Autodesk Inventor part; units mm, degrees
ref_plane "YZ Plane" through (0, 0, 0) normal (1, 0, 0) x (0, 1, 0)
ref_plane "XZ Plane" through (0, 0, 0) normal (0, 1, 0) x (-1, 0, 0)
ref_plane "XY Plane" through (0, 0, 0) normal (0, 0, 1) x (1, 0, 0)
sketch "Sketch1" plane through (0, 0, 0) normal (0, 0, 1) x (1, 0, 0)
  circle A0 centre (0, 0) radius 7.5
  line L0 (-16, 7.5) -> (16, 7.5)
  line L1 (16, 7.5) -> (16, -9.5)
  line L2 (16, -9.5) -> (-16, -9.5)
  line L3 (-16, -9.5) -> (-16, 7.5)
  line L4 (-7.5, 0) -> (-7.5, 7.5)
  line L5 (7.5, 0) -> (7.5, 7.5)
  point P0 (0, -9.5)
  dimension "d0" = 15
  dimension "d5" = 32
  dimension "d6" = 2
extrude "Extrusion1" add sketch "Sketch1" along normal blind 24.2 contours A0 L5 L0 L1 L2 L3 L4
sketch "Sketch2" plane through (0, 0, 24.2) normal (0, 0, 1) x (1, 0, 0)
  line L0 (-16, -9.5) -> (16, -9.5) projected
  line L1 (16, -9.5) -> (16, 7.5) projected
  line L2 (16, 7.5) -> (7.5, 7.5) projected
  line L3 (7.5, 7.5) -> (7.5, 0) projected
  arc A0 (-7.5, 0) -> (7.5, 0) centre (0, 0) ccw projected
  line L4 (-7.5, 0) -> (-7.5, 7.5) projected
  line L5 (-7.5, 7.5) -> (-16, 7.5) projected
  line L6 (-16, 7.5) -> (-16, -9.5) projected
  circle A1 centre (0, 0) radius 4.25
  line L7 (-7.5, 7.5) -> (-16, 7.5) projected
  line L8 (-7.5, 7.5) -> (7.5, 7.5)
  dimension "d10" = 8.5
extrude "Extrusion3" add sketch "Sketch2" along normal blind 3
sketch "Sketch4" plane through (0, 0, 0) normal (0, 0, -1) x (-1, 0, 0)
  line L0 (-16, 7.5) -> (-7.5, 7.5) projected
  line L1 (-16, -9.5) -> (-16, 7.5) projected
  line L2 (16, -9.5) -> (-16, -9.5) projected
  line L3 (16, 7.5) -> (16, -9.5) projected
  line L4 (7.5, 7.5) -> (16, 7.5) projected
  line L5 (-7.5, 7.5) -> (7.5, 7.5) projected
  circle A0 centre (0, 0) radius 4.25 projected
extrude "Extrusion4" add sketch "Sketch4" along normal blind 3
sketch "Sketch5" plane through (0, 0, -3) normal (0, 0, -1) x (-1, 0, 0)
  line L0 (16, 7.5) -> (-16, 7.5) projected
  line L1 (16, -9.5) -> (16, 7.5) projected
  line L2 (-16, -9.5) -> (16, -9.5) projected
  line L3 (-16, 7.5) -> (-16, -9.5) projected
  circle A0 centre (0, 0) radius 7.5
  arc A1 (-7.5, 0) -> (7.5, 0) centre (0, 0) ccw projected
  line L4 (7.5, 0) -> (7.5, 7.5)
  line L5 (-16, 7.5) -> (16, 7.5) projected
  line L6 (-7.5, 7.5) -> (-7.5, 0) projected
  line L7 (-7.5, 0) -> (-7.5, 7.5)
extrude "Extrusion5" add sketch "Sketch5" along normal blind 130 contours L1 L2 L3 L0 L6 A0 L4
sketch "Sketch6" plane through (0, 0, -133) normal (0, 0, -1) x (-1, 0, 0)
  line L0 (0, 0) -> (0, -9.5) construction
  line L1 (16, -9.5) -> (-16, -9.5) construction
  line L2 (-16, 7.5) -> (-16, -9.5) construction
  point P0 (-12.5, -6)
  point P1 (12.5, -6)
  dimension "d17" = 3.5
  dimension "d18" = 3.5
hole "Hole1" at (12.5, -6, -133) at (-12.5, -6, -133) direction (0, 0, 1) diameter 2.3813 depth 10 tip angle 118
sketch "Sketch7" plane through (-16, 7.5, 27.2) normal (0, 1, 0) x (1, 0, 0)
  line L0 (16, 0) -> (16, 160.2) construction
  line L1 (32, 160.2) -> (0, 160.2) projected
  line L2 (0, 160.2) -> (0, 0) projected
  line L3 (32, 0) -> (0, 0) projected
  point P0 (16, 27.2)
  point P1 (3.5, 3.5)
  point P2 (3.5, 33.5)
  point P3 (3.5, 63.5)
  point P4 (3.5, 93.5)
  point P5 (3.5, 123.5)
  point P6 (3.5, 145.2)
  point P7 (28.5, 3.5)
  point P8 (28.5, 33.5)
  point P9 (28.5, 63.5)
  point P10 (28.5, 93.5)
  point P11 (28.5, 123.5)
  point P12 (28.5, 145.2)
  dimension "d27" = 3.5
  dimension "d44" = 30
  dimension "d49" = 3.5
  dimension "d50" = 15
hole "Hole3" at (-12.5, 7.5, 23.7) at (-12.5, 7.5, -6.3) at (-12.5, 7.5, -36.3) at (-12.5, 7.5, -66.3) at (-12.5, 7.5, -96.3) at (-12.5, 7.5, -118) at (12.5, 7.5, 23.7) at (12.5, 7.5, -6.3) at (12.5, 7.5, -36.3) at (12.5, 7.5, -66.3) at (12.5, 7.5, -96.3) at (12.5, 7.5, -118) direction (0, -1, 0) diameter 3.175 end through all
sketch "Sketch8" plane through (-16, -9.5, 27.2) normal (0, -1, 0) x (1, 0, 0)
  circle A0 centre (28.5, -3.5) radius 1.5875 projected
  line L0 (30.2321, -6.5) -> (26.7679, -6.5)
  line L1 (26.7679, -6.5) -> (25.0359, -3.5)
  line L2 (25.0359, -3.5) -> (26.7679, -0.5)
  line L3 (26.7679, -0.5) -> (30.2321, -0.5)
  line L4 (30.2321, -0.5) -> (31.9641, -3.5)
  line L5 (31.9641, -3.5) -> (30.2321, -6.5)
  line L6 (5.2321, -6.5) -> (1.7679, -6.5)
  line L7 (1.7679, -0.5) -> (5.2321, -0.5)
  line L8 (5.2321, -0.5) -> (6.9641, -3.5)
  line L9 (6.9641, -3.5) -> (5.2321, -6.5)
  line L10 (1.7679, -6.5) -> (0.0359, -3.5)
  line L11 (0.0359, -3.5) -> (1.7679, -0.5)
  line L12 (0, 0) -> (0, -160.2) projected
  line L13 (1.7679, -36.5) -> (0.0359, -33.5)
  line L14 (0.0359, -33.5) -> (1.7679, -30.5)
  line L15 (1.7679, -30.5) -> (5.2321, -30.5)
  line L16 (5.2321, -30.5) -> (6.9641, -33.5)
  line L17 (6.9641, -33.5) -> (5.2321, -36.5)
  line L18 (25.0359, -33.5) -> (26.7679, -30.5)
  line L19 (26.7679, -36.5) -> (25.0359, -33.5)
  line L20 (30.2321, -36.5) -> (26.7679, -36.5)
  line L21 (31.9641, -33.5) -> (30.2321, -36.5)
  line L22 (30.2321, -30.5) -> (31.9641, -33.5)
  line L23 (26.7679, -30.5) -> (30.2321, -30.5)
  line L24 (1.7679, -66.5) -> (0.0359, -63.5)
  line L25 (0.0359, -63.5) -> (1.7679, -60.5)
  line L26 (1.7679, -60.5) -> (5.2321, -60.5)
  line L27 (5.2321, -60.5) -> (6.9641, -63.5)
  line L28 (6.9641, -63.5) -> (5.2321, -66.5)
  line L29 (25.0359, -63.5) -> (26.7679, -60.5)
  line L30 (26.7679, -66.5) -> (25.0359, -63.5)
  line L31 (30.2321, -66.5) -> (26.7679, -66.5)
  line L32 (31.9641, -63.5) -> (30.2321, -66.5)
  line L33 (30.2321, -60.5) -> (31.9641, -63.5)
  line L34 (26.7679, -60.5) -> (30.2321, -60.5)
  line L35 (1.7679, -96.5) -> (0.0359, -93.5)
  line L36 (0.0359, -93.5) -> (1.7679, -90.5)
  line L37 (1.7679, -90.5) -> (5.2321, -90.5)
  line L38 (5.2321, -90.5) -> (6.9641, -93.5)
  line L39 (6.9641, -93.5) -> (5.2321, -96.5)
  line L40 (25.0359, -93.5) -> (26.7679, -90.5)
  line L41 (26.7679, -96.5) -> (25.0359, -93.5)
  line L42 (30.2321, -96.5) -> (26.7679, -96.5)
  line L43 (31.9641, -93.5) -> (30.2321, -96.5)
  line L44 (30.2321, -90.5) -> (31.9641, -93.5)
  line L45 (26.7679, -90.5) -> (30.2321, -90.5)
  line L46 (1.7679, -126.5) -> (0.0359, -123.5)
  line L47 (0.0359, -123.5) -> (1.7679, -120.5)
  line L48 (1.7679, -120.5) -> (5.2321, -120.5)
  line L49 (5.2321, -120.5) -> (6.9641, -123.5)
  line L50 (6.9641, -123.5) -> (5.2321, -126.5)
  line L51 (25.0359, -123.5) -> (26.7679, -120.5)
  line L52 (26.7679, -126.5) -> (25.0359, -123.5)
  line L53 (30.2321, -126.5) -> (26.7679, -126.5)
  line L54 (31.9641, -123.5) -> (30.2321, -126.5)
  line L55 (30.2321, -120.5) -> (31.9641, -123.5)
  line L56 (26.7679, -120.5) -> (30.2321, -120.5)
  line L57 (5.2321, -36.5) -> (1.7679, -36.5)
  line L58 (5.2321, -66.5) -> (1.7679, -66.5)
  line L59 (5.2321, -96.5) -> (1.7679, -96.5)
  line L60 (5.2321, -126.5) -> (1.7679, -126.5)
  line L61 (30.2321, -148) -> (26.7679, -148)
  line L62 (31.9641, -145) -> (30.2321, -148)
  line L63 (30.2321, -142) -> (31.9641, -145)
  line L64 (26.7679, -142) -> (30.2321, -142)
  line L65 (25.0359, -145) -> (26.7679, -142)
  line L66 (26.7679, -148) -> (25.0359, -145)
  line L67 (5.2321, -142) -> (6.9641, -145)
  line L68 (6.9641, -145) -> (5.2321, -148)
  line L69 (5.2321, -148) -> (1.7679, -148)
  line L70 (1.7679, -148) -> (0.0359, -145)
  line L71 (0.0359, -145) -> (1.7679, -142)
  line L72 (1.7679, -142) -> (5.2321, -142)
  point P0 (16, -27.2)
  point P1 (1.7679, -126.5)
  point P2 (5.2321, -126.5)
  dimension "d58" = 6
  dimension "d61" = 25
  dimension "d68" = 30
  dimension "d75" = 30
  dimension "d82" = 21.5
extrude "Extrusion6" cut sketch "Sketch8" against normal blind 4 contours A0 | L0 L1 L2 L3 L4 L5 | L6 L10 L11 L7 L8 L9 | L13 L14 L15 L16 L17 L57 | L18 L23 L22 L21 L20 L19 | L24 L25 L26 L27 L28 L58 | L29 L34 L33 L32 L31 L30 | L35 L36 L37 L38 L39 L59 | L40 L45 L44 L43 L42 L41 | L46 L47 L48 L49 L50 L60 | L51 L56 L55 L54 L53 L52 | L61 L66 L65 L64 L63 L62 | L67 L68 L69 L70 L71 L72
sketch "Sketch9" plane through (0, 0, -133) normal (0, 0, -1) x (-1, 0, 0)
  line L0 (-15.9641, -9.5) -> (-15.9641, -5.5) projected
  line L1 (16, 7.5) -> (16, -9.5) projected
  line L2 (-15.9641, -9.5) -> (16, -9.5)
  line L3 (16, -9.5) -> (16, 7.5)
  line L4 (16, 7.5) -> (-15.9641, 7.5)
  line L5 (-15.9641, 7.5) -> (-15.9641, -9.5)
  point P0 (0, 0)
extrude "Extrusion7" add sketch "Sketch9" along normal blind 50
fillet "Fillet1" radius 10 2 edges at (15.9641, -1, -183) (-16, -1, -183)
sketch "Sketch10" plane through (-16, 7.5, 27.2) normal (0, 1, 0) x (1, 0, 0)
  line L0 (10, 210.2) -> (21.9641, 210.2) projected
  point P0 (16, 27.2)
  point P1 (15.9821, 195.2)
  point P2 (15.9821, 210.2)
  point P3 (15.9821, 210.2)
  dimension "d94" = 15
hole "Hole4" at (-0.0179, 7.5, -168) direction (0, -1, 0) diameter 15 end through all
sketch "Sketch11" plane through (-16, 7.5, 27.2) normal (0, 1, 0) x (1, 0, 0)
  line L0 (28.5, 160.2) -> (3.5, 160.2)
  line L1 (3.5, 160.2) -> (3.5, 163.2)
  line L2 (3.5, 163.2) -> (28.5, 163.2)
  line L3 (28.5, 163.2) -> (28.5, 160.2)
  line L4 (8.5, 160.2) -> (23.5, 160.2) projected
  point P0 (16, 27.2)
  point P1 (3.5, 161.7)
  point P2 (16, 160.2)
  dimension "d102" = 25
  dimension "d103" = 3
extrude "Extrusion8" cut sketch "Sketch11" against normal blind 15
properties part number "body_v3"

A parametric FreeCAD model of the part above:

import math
import FreeCAD as App
import Part
import Sketcher

V = App.Vector
Q = App.Units.Quantity


def edges_at(feature, points):
    """Names of the edges that pass closest to the given points."""
    edges = feature.Shape.Edges
    near = lambda p: min(range(len(edges)), key=lambda i: edges[i].distToShape(Part.Vertex(*p))[0])
    return sorted({f"Edge{near(p) + 1}" for p in points})

doc = App.newDocument("Part")
body = doc.addObject("PartDesign::Body", "Body")

# Sketch on XY plane
sketch1 = body.newObject("Sketcher::SketchObject", "Sketch")
sketch1.AttachmentSupport = (doc.getObject("XY_Plane"), [""])
sketch1.MapMode = "FlatFace"
sketch1.addGeometry([
    Part.ArcOfCircle(Part.Circle(V(0, 0, 0), V(0, 0, 1), 8), math.radians(180), math.radians(360)),  # 0
    Part.LineSegment(V(-8, 0, 0), V(-8, 8, 0)),  # 1
    Part.LineSegment(V(-8, 8, 0), V(-16, 8, 0)),  # 2
    Part.LineSegment(V(-16, 8, 0), V(-16, -10, 0)),  # 3
    Part.LineSegment(V(-16, -10, 0), V(16, -10, 0)),  # 4
    Part.LineSegment(V(16, -10, 0), V(16, 8, 0)),  # 5
    Part.LineSegment(V(16, 8, 0), V(8, 8, 0)),  # 6
    Part.LineSegment(V(8, 8, 0), V(8, 0, 0)),  # 7
], False)
sketch1.addConstraint([
    Sketcher.Constraint("Tangent", 0, 1, 1, 1),
    Sketcher.Constraint("Coincident", 1, 2, 2, 1),
    Sketcher.Constraint("Coincident", 2, 2, 3, 1),
    Sketcher.Constraint("Coincident", 3, 2, 4, 1),
    Sketcher.Constraint("Coincident", 4, 2, 5, 1),
    Sketcher.Constraint("Coincident", 5, 2, 6, 1),
    Sketcher.Constraint("Coincident", 6, 2, 7, 1),
    Sketcher.Constraint("Tangent", 7, 2, 0, 2),
    Sketcher.Constraint("Vertical", 1),
    Sketcher.Constraint("Horizontal", 2),
    Sketcher.Constraint("Vertical", 3),
    Sketcher.Constraint("Horizontal", 4),
    Sketcher.Constraint("Vertical", 5),
    Sketcher.Constraint("Horizontal", 6),
    Sketcher.Constraint("Vertical", 7),
    Sketcher.Constraint("Coincident", 0, 3, -1, 1),
    Sketcher.Constraint("Symmetric", 2, 2, 5, 2, -2),
    Sketcher.Constraint("Radius", 0, 7.5),
    Sketcher.Constraint("DistanceX", 4, 1, 4, 2, 32.0),
    Sketcher.Constraint("DistanceY", 3, 2, 3, 1, 17.0),
    Sketcher.Constraint("DistanceY", 1, 1, 1, 2, 7.5),
])
pad1 = body.newObject("PartDesign::Pad", "Pad")
pad1.Profile = sketch1
pad1.Length = 24.2

# Sketch on XY plane
sketch2 = body.newObject("Sketcher::SketchObject", "Sketch001")
sketch2.AttachmentSupport = (doc.getObject("XY_Plane"), [""])
sketch2.MapMode = "FlatFace"
sketch2.AttachmentOffset = App.Placement(V(0, 0, 24.2), App.Rotation())
sketch2.addGeometry([
    Part.LineSegment(V(-16, 7.5, 0), V(-16, -9.5, 0)),  # 0
    Part.LineSegment(V(-16, -9.5, 0), V(16, -9.5, 0)),  # 1
    Part.LineSegment(V(16, -9.5, 0), V(16, 7.5, 0)),  # 2
    Part.LineSegment(V(16, 7.5, 0), V(-16, 7.5, 0)),  # 3
    Part.Circle(V(0, 0, 0), V(0, 0, 1), 4.2),  # 4
], False)
sketch2.addConstraint([
    Sketcher.Constraint("Coincident", 0, 2, 1, 1),
    Sketcher.Constraint("Coincident", 1, 2, 2, 1),
    Sketcher.Constraint("Coincident", 2, 2, 3, 1),
    Sketcher.Constraint("Coincident", 3, 2, 0, 1),
    Sketcher.Constraint("Vertical", 0),
    Sketcher.Constraint("Horizontal", 1),
    Sketcher.Constraint("Vertical", 2),
    Sketcher.Constraint("Horizontal", 3),
    Sketcher.Constraint("Coincident", 4, 3, -1, 1),
    Sketcher.Constraint("Diameter", 4, 8.5),
    Sketcher.Constraint("DistanceX", 1, 1, 1, 2, 32.0),
    Sketcher.Constraint("DistanceY", 0, 2, 0, 1, 17.0),
    Sketcher.Constraint("DistanceX", 0, 2, -1, 1, 16.0),
    Sketcher.Constraint("DistanceY", 0, 2, -1, 1, 9.5),
])
pad2 = body.newObject("PartDesign::Pad", "Pad001")
pad2.Profile = sketch2
pad2.Length = 3

# Sketch on XY plane
sketch3 = body.newObject("Sketcher::SketchObject", "Sketch002")
sketch3.AttachmentSupport = (doc.getObject("XY_Plane"), [""])
sketch3.MapMode = "FlatFace"
sketch3.addGeometry([
    Part.LineSegment(V(-16, 7.5, 0), V(16, 7.5, 0)),  # 0
    Part.LineSegment(V(16, 7.5, 0), V(16, -9.5, 0)),  # 1
    Part.LineSegment(V(16, -9.5, 0), V(-16, -9.5, 0)),  # 2
    Part.LineSegment(V(-16, -9.5, 0), V(-16, 7.5, 0)),  # 3
    Part.Circle(V(0, 0, 0), V(0, 0, 1), 4.2),  # 4
], False)
sketch3.addConstraint([
    Sketcher.Constraint("Coincident", 0, 2, 1, 1),
    Sketcher.Constraint("Coincident", 1, 2, 2, 1),
    Sketcher.Constraint("Coincident", 2, 2, 3, 1),
    Sketcher.Constraint("Coincident", 3, 2, 0, 1),
    Sketcher.Constraint("Horizontal", 0),
    Sketcher.Constraint("Vertical", 1),
    Sketcher.Constraint("Horizontal", 2),
    Sketcher.Constraint("Vertical", 3),
    Sketcher.Constraint("Coincident", 4, 3, -1, 1),
    Sketcher.Constraint("Diameter", 4, 8.5),
    Sketcher.Constraint("DistanceX", 0, 1, 0, 2, 32.0),
    Sketcher.Constraint("DistanceY", 1, 2, 1, 1, 17.0),
    Sketcher.Constraint("DistanceX", -1, 1, 0, 2, 16.0),
    Sketcher.Constraint("DistanceY", -1, 1, 0, 2, 7.5),
])
pad3 = body.newObject("PartDesign::Pad", "Pad002")
pad3.Profile = sketch3
pad3.Length = 3
pad3.Reversed = True

# Sketch on XY plane
sketch4 = body.newObject("Sketcher::SketchObject", "Sketch003")
sketch4.AttachmentSupport = (doc.getObject("XY_Plane"), [""])
sketch4.MapMode = "FlatFace"
sketch4.AttachmentOffset = App.Placement(V(0, 0, -3), App.Rotation())
sketch4.addGeometry([
    Part.LineSegment(V(-16, -10, 0), V(-16, 8, 0)),  # 0
    Part.LineSegment(V(-16, 8, 0), V(-8, 8, 0)),  # 1
    Part.LineSegment(V(-8, 8, 0), V(-8, 0, 0)),  # 2
    Part.ArcOfCircle(Part.Circle(V(0, 0, 0), V(0, 0, 1), 8), math.radians(180), math.radians(360)),  # 3
    Part.LineSegment(V(8, 0, 0), V(8, 8, 0)),  # 4
    Part.LineSegment(V(8, 8, 0), V(16, 8, 0)),  # 5
    Part.LineSegment(V(16, 8, 0), V(16, -10, 0)),  # 6
    Part.LineSegment(V(16, -10, 0), V(-16, -10, 0)),  # 7
], False)
sketch4.addConstraint([
    Sketcher.Constraint("Coincident", 0, 2, 1, 1),
    Sketcher.Constraint("Coincident", 1, 2, 2, 1),
    Sketcher.Constraint("Tangent", 2, 2, 3, 1),
    Sketcher.Constraint("Tangent", 3, 2, 4, 1),
    Sketcher.Constraint("Coincident", 4, 2, 5, 1),
    Sketcher.Constraint("Coincident", 5, 2, 6, 1),
    Sketcher.Constraint("Coincident", 6, 2, 7, 1),
    Sketcher.Constraint("Coincident", 7, 2, 0, 1),
    Sketcher.Constraint("Vertical", 0),
    Sketcher.Constraint("Horizontal", 1),
    Sketcher.Constraint("Vertical", 2),
    Sketcher.Constraint("Vertical", 4),
    Sketcher.Constraint("Horizontal", 5),
    Sketcher.Constraint("Vertical", 6),
    Sketcher.Constraint("Horizontal", 7),
    Sketcher.Constraint("Coincident", 3, 3, -1, 1),
    Sketcher.Constraint("Symmetric", 0, 2, 5, 2, -2),
    Sketcher.Constraint("Radius", 3, 7.5),
    Sketcher.Constraint("DistanceX", 7, 2, 7, 1, 32.0),
    Sketcher.Constraint("DistanceY", 0, 1, 0, 2, 17.0),
    Sketcher.Constraint("DistanceY", 2, 2, 2, 1, 7.5),
])
pad4 = body.newObject("PartDesign::Pad", "Pad003")
pad4.Profile = sketch4
pad4.Length = 130
pad4.Reversed = True

# Sketch on XY plane
sketch5 = body.newObject("Sketcher::SketchObject", "Sketch004")
sketch5.AttachmentSupport = (doc.getObject("XY_Plane"), [""])
sketch5.MapMode = "FlatFace"
sketch5.AttachmentOffset = App.Placement(V(0, 0, -133), App.Rotation())
sketch5.addGeometry([
    Part.Circle(V(12.5, -6, 0), V(0, 0, 1), 1.2),
    Part.Circle(V(-12.5, -6, 0), V(0, 0, 1), 1.2),
], False)
sketch5.addConstraint([
    Sketcher.Constraint("Equal", 0, 1),
    Sketcher.Constraint("Symmetric", 0, 3, 1, 3, -2),
    Sketcher.Constraint("DistanceY", 0, 3, -1, 1, 6.0),
    Sketcher.Constraint("DistanceX", 1, 3, 0, 3, 25.0),
    Sketcher.Constraint("Diameter", 0, 2.3813),
])
doc.recompute()
hole = body.newObject("PartDesign::Hole", "Hole")
hole.Profile = sketch5
hole.ThreadType = "None"
hole.Diameter = 2.3813
hole.DepthType = "Dimension"
hole.Depth = 10
hole.DrillPoint = "Angled"
hole.DrillPointAngle = 118
hole.Reversed = True

# Sketch on XZ plane
sketch6 = body.newObject("Sketcher::SketchObject", "Sketch005")
sketch6.AttachmentSupport = (doc.getObject("XZ_Plane"), [""])
sketch6.MapMode = "FlatFace"
sketch6.AttachmentOffset = App.Placement(V(0, 0, -7.5), App.Rotation())
sketch6.addGeometry([
    Part.Circle(V(-12.5, 23.7, 0), V(0, 0, 1), 1.6),  # 0
    Part.Circle(V(-12.5, -6.3, 0), V(0, 0, 1), 1.6),  # 1
    Part.Circle(V(-12.5, -36.3, 0), V(0, 0, 1), 1.6),  # 2
    Part.Circle(V(-12.5, -66.3, 0), V(0, 0, 1), 1.6),  # 3
    Part.Circle(V(-12.5, -96.3, 0), V(0, 0, 1), 1.6),  # 4
    Part.Circle(V(-12.5, -118, 0), V(0, 0, 1), 1.6),  # 5
    Part.Circle(V(12.5, 23.7, 0), V(0, 0, 1), 1.6),  # 6
    Part.Circle(V(12.5, -6.3, 0), V(0, 0, 1), 1.6),  # 7
    Part.Circle(V(12.5, -36.3, 0), V(0, 0, 1), 1.6),  # 8
    Part.Circle(V(12.5, -66.3, 0), V(0, 0, 1), 1.6),  # 9
    Part.Circle(V(12.5, -96.3, 0), V(0, 0, 1), 1.6),  # 10
    Part.Circle(V(12.5, -118, 0), V(0, 0, 1), 1.6),  # 11
], False)
sketch6.addConstraint([
    Sketcher.Constraint("Equal", 0, 1),
    Sketcher.Constraint("Equal", 1, 2),
    Sketcher.Constraint("Equal", 2, 3),
    Sketcher.Constraint("Equal", 3, 4),
    Sketcher.Constraint("Equal", 4, 5),
    Sketcher.Constraint("Equal", 5, 6),
    Sketcher.Constraint("Equal", 6, 7),
    Sketcher.Constraint("Equal", 7, 8),
    Sketcher.Constraint("Equal", 8, 9),
    Sketcher.Constraint("Equal", 9, 10),
    Sketcher.Constraint("Equal", 10, 11),
    Sketcher.Constraint("Symmetric", 0, 3, 6, 3, -2),
    Sketcher.Constraint("Symmetric", 1, 3, 7, 3, -2),
    Sketcher.Constraint("Symmetric", 2, 3, 8, 3, -2),
    Sketcher.Constraint("Symmetric", 3, 3, 9, 3, -2),
    Sketcher.Constraint("Symmetric", 4, 3, 10, 3, -2),
    Sketcher.Constraint("Symmetric", 5, 3, 11, 3, -2),
    Sketcher.Constraint("Vertical", 0, 3, 1, 3),
    Sketcher.Constraint("Vertical", 1, 3, 2, 3),
    Sketcher.Constraint("Vertical", 2, 3, 3, 3),
    Sketcher.Constraint("Vertical", 3, 3, 4, 3),
    Sketcher.Constraint("Vertical", 4, 3, 5, 3),
    Sketcher.Constraint("Diameter", 0, 3.175),
    Sketcher.Constraint("DistanceY", 5, 3, -1, 1, 118.0),
    Sketcher.Constraint("DistanceY", 1, 3, 0, 3, 30.0),
    Sketcher.Constraint("DistanceY", 2, 3, 1, 3, 30.0),
    Sketcher.Constraint("DistanceY", 3, 3, 2, 3, 30.0),
    Sketcher.Constraint("DistanceY", 4, 3, 3, 3, 30.0),
    Sketcher.Constraint("DistanceX", 0, 3, 6, 3, 25.0),
    Sketcher.Constraint("DistanceY", -1, 1, 0, 3, 23.7),
])
doc.recompute()
hole2 = body.newObject("PartDesign::Hole", "Hole001")
hole2.Profile = sketch6
hole2.ThreadType = "None"
hole2.Diameter = 3.175
hole2.DepthType = "ThroughAll"
hole2.Reversed = True

# Sketch on XZ plane
sketch7 = body.newObject("Sketcher::SketchObject", "Sketch006")
sketch7.AttachmentSupport = (doc.getObject("XZ_Plane"), [""])
sketch7.MapMode = "FlatFace"
sketch7.AttachmentOffset = App.Placement(V(0, 0, 9.5), App.Rotation())
sketch7.addGeometry([
    Part.LineSegment(V(10.8, 20.7, 0), V(14.2, 20.7, 0)),  # 0
    Part.LineSegment(V(14.2, 20.7, 0), V(16, 23.7, 0)),  # 1
    Part.LineSegment(V(16, 23.7, 0), V(14.2, 26.7, 0)),  # 2
    Part.LineSegment(V(14.2, 26.7, 0), V(10.8, 26.7, 0)),  # 3
    Part.LineSegment(V(10.8, 26.7, 0), V(9, 23.7, 0)),  # 4
    Part.LineSegment(V(9, 23.7, 0), V(10.8, 20.7, 0)),  # 5
    Part.LineSegment(V(-14.2, 20.7, 0), V(-10.8, 20.7, 0)),  # 6
    Part.LineSegment(V(-10.8, 20.7, 0), V(-9, 23.7, 0)),  # 7
    Part.LineSegment(V(-9, 23.7, 0), V(-10.8, 26.7, 0)),  # 8
    Part.LineSegment(V(-10.8, 26.7, 0), V(-14.2, 26.7, 0)),  # 9
    Part.LineSegment(V(-14.2, 26.7, 0), V(-16, 23.7, 0)),  # 10
    Part.LineSegment(V(-16, 23.7, 0), V(-14.2, 20.7, 0)),  # 11
    Part.LineSegment(V(-16, -6.3, 0), V(-14.2, -9.3, 0)),  # 12
    Part.LineSegment(V(-14.2, -9.3, 0), V(-10.8, -9.3, 0)),  # 13
    Part.LineSegment(V(-10.8, -9.3, 0), V(-9, -6.3, 0)),  # 14
    Part.LineSegment(V(-9, -6.3, 0), V(-10.8, -3.3, 0)),  # 15
    Part.LineSegment(V(-10.8, -3.3, 0), V(-14.2, -3.3, 0)),  # 16
    Part.LineSegment(V(-14.2, -3.3, 0), V(-16, -6.3, 0)),  # 17
    Part.LineSegment(V(10.8, -3.3, 0), V(9, -6.3, 0)),  # 18
    Part.LineSegment(V(9, -6.3, 0), V(10.8, -9.3, 0)),  # 19
    Part.LineSegment(V(10.8, -9.3, 0), V(14.2, -9.3, 0)),  # 20
    Part.LineSegment(V(14.2, -9.3, 0), V(16, -6.3, 0)),  # 21
    Part.LineSegment(V(16, -6.3, 0), V(14.2, -3.3, 0)),  # 22
    Part.LineSegment(V(14.2, -3.3, 0), V(10.8, -3.3, 0)),  # 23
    Part.LineSegment(V(-16, -36.3, 0), V(-14.2, -39.3, 0)),  # 24
    Part.LineSegment(V(-14.2, -39.3, 0), V(-10.8, -39.3, 0)),  # 25
    Part.LineSegment(V(-10.8, -39.3, 0), V(-9, -36.3, 0)),  # 26
    Part.LineSegment(V(-9, -36.3, 0), V(-10.8, -33.3, 0)),  # 27
    Part.LineSegment(V(-10.8, -33.3, 0), V(-14.2, -33.3, 0)),  # 28
    Part.LineSegment(V(-14.2, -33.3, 0), V(-16, -36.3, 0)),  # 29
    Part.LineSegment(V(10.8, -33.3, 0), V(9, -36.3, 0)),  # 30
    Part.LineSegment(V(9, -36.3, 0), V(10.8, -39.3, 0)),  # 31
    Part.LineSegment(V(10.8, -39.3, 0), V(14.2, -39.3, 0)),  # 32
    Part.LineSegment(V(14.2, -39.3, 0), V(16, -36.3, 0)),  # 33
    Part.LineSegment(V(16, -36.3, 0), V(14.2, -33.3, 0)),  # 34
    Part.LineSegment(V(14.2, -33.3, 0), V(10.8, -33.3, 0)),  # 35
    Part.LineSegment(V(-16, -66.3, 0), V(-14.2, -69.3, 0)),  # 36
    Part.LineSegment(V(-14.2, -69.3, 0), V(-10.8, -69.3, 0)),  # 37
    Part.LineSegment(V(-10.8, -69.3, 0), V(-9, -66.3, 0)),  # 38
    Part.LineSegment(V(-9, -66.3, 0), V(-10.8, -63.3, 0)),  # 39
    Part.LineSegment(V(-10.8, -63.3, 0), V(-14.2, -63.3, 0)),  # 40
    Part.LineSegment(V(-14.2, -63.3, 0), V(-16, -66.3, 0)),  # 41
    Part.LineSegment(V(10.8, -63.3, 0), V(9, -66.3, 0)),  # 42
    Part.LineSegment(V(9, -66.3, 0), V(10.8, -69.3, 0)),  # 43
    Part.LineSegment(V(10.8, -69.3, 0), V(14.2, -69.3, 0)),  # 44
    Part.LineSegment(V(14.2, -69.3, 0), V(16, -66.3, 0)),  # 45
    Part.LineSegment(V(16, -66.3, 0), V(14.2, -63.3, 0)),  # 46
    Part.LineSegment(V(14.2, -63.3, 0), V(10.8, -63.3, 0)),  # 47
    Part.LineSegment(V(-16, -96.3, 0), V(-14.2, -99.3, 0)),  # 48
    Part.LineSegment(V(-14.2, -99.3, 0), V(-10.8, -99.3, 0)),  # 49
    Part.LineSegment(V(-10.8, -99.3, 0), V(-9, -96.3, 0)),  # 50
    Part.LineSegment(V(-9, -96.3, 0), V(-10.8, -93.3, 0)),  # 51
    Part.LineSegment(V(-10.8, -93.3, 0), V(-14.2, -93.3, 0)),  # 52
    Part.LineSegment(V(-14.2, -93.3, 0), V(-16, -96.3, 0)),  # 53
    Part.LineSegment(V(10.8, -93.3, 0), V(9, -96.3, 0)),  # 54
    Part.LineSegment(V(9, -96.3, 0), V(10.8, -99.3, 0)),  # 55
    Part.LineSegment(V(10.8, -99.3, 0), V(14.2, -99.3, 0)),  # 56
    Part.LineSegment(V(14.2, -99.3, 0), V(16, -96.3, 0)),  # 57
    Part.LineSegment(V(16, -96.3, 0), V(14.2, -93.3, 0)),  # 58
    Part.LineSegment(V(14.2, -93.3, 0), V(10.8, -93.3, 0)),  # 59
    Part.LineSegment(V(10.8, -120.8, 0), V(14.2, -120.8, 0)),  # 60
    Part.LineSegment(V(14.2, -120.8, 0), V(16, -117.8, 0)),  # 61
    Part.LineSegment(V(16, -117.8, 0), V(14.2, -114.8, 0)),  # 62
    Part.LineSegment(V(14.2, -114.8, 0), V(10.8, -114.8, 0)),  # 63
    Part.LineSegment(V(10.8, -114.8, 0), V(9, -117.8, 0)),  # 64
    Part.LineSegment(V(9, -117.8, 0), V(10.8, -120.8, 0)),  # 65
    Part.LineSegment(V(-9, -117.8, 0), V(-10.8, -114.8, 0)),  # 66
    Part.LineSegment(V(-10.8, -114.8, 0), V(-14.2, -114.8, 0)),  # 67
    Part.LineSegment(V(-14.2, -114.8, 0), V(-16, -117.8, 0)),  # 68
    Part.LineSegment(V(-16, -117.8, 0), V(-14.2, -120.8, 0)),  # 69
    Part.LineSegment(V(-14.2, -120.8, 0), V(-10.8, -120.8, 0)),  # 70
    Part.LineSegment(V(-10.8, -120.8, 0), V(-9, -117.8, 0)),  # 71
], False)
sketch7.addConstraint([
    Sketcher.Constraint("Coincident", 0, 2, 1, 1),
    Sketcher.Constraint("Coincident", 1, 2, 2, 1),
    Sketcher.Constraint("Coincident", 2, 2, 3, 1),
    Sketcher.Constraint("Coincident", 3, 2, 4, 1),
    Sketcher.Constraint("Coincident", 4, 2, 5, 1),
    Sketcher.Constraint("Coincident", 5, 2, 0, 1),
    Sketcher.Constraint("Coincident", 6, 2, 7, 1),
    Sketcher.Constraint("Coincident", 7, 2, 8, 1),
    Sketcher.Constraint("Coincident", 8, 2, 9, 1),
    Sketcher.Constraint("Coincident", 9, 2, 10, 1),
    Sketcher.Constraint("Coincident", 10, 2, 11, 1),
    Sketcher.Constraint("Coincident", 11, 2, 6, 1),
    Sketcher.Constraint("Coincident", 12, 2, 13, 1),
    Sketcher.Constraint("Coincident", 13, 2, 14, 1),
    Sketcher.Constraint("Coincident", 14, 2, 15, 1),
    Sketcher.Constraint("Coincident", 15, 2, 16, 1),
    Sketcher.Constraint("Coincident", 16, 2, 17, 1),
    Sketcher.Constraint("Coincident", 17, 2, 12, 1),
    Sketcher.Constraint("Coincident", 18, 2, 19, 1),
    Sketcher.Constraint("Coincident", 19, 2, 20, 1),
    Sketcher.Constraint("Coincident", 20, 2, 21, 1),
    Sketcher.Constraint("Coincident", 21, 2, 22, 1),
    Sketcher.Constraint("Coincident", 22, 2, 23, 1),
    Sketcher.Constraint("Coincident", 23, 2, 18, 1),
    Sketcher.Constraint("Coincident", 24, 2, 25, 1),
    Sketcher.Constraint("Coincident", 25, 2, 26, 1),
    Sketcher.Constraint("Coincident", 26, 2, 27, 1),
    Sketcher.Constraint("Coincident", 27, 2, 28, 1),
    Sketcher.Constraint("Coincident", 28, 2, 29, 1),
    Sketcher.Constraint("Coincident", 29, 2, 24, 1),
    Sketcher.Constraint("Coincident", 30, 2, 31, 1),
    Sketcher.Constraint("Coincident", 31, 2, 32, 1),
    Sketcher.Constraint("Coincident", 32, 2, 33, 1),
    Sketcher.Constraint("Coincident", 33, 2, 34, 1),
    Sketcher.Constraint("Coincident", 34, 2, 35, 1),
    Sketcher.Constraint("Coincident", 35, 2, 30, 1),
    Sketcher.Constraint("Coincident", 36, 2, 37, 1),
    Sketcher.Constraint("Coincident", 37, 2, 38, 1),
    Sketcher.Constraint("Coincident", 38, 2, 39, 1),
    Sketcher.Constraint("Coincident", 39, 2, 40, 1),
    Sketcher.Constraint("Coincident", 40, 2, 41, 1),
    Sketcher.Constraint("Coincident", 41, 2, 36, 1),
    Sketcher.Constraint("Coincident", 42, 2, 43, 1),
    Sketcher.Constraint("Coincident", 43, 2, 44, 1),
    Sketcher.Constraint("Coincident", 44, 2, 45, 1),
    Sketcher.Constraint("Coincident", 45, 2, 46, 1),
    Sketcher.Constraint("Coincident", 46, 2, 47, 1),
    Sketcher.Constraint("Coincident", 47, 2, 42, 1),
    Sketcher.Constraint("Coincident", 48, 2, 49, 1),
    Sketcher.Constraint("Coincident", 49, 2, 50, 1),
    Sketcher.Constraint("Coincident", 50, 2, 51, 1),
    Sketcher.Constraint("Coincident", 51, 2, 52, 1),
    Sketcher.Constraint("Coincident", 52, 2, 53, 1),
    Sketcher.Constraint("Coincident", 53, 2, 48, 1),
    Sketcher.Constraint("Coincident", 54, 2, 55, 1),
    Sketcher.Constraint("Coincident", 55, 2, 56, 1),
    Sketcher.Constraint("Coincident", 56, 2, 57, 1),
    Sketcher.Constraint("Coincident", 57, 2, 58, 1),
    Sketcher.Constraint("Coincident", 58, 2, 59, 1),
    Sketcher.Constraint("Coincident", 59, 2, 54, 1),
    Sketcher.Constraint("Coincident", 60, 2, 61, 1),
    Sketcher.Constraint("Coincident", 61, 2, 62, 1),
    Sketcher.Constraint("Coincident", 62, 2, 63, 1),
    Sketcher.Constraint("Coincident", 63, 2, 64, 1),
    Sketcher.Constraint("Coincident", 64, 2, 65, 1),
    Sketcher.Constraint("Coincident", 65, 2, 60, 1),
    Sketcher.Constraint("Coincident", 66, 2, 67, 1),
    Sketcher.Constraint("Coincident", 67, 2, 68, 1),
    Sketcher.Constraint("Coincident", 68, 2, 69, 1),
    Sketcher.Constraint("Coincident", 69, 2, 70, 1),
    Sketcher.Constraint("Coincident", 70, 2, 71, 1),
    Sketcher.Constraint("Coincident", 71, 2, 66, 1),
    Sketcher.Constraint("Horizontal", 0),
    Sketcher.Constraint("Horizontal", 3),
    Sketcher.Constraint("Horizontal", 6),
    Sketcher.Constraint("Horizontal", 9),
    Sketcher.Constraint("Horizontal", 13),
    Sketcher.Constraint("Horizontal", 16),
    Sketcher.Constraint("Horizontal", 20),
    Sketcher.Constraint("Horizontal", 23),
    Sketcher.Constraint("Horizontal", 25),
    Sketcher.Constraint("Horizontal", 28),
    Sketcher.Constraint("Horizontal", 32),
    Sketcher.Constraint("Horizontal", 35),
    Sketcher.Constraint("Horizontal", 37),
    Sketcher.Constraint("Horizontal", 40),
    Sketcher.Constraint("Horizontal", 44),
    Sketcher.Constraint("Horizontal", 47),
    Sketcher.Constraint("Horizontal", 49),
    Sketcher.Constraint("Horizontal", 52),
    Sketcher.Constraint("Horizontal", 56),
    Sketcher.Constraint("Horizontal", 59),
    Sketcher.Constraint("Horizontal", 60),
    Sketcher.Constraint("Horizontal", 63),
    Sketcher.Constraint("Horizontal", 67),
    Sketcher.Constraint("Horizontal", 70),
    Sketcher.Constraint("Symmetric", 5, 2, 6, 2, -2),
    Sketcher.Constraint("Symmetric", 4, 2, 7, 2, -2),
    Sketcher.Constraint("Symmetric", 3, 2, 8, 2, -2),
    Sketcher.Constraint("Symmetric", 1, 2, 10, 2, -2),
    Sketcher.Constraint("Symmetric", 14, 2, 18, 2, -2),
    Sketcher.Constraint("Symmetric", 13, 2, 19, 2, -2),
    Sketcher.Constraint("Symmetric", 17, 2, 21, 2, -2),
    Sketcher.Constraint("Symmetric", 16, 2, 22, 2, -2),
    Sketcher.Constraint("Symmetric", 26, 2, 30, 2, -2),
    Sketcher.Constraint("Symmetric", 25, 2, 31, 2, -2),
    Sketcher.Constraint("Symmetric", 29, 2, 33, 2, -2),
    Sketcher.Constraint("Symmetric", 28, 2, 34, 2, -2),
    Sketcher.Constraint("Symmetric", 38, 2, 42, 2, -2),
    Sketcher.Constraint("Symmetric", 37, 2, 43, 2, -2),
    Sketcher.Constraint("Symmetric", 41, 2, 45, 2, -2),
    Sketcher.Constraint("Symmetric", 40, 2, 46, 2, -2),
    Sketcher.Constraint("Symmetric", 50, 2, 54, 2, -2),
    Sketcher.Constraint("Symmetric", 49, 2, 55, 2, -2),
    Sketcher.Constraint("Symmetric", 53, 2, 57, 2, -2),
    Sketcher.Constraint("Symmetric", 52, 2, 58, 2, -2),
    Sketcher.Constraint("Symmetric", 63, 2, 66, 2, -2),
    Sketcher.Constraint("Symmetric", 61, 2, 68, 2, -2),
    Sketcher.Constraint("Symmetric", 60, 2, 69, 2, -2),
    Sketcher.Constraint("Symmetric", 64, 2, 71, 2, -2),
    Sketcher.Constraint("Parallel", 1, 4),
    Sketcher.Constraint("Parallel", 2, 5),
    Sketcher.Constraint("Parallel", 4, 7),
    Sketcher.Constraint("Parallel", 7, 10),
    Sketcher.Constraint("Parallel", 8, 11),
    Sketcher.Constraint("Parallel", 11, 12),
    Sketcher.Constraint("Parallel", 10, 14),
    Sketcher.Constraint("Parallel", 12, 15),
    Sketcher.Constraint("Parallel", 14, 17),
    Sketcher.Constraint("Parallel", 17, 18),
    Sketcher.Constraint("Parallel", 18, 21),
    Sketcher.Constraint("Parallel", 22, 24),
    Sketcher.Constraint("Parallel", 21, 26),
    Sketcher.Constraint("Parallel", 24, 27),
    Sketcher.Constraint("Parallel", 26, 29),
    Sketcher.Constraint("Parallel", 29, 30),
    Sketcher.Constraint("Parallel", 30, 33),
    Sketcher.Constraint("Parallel", 34, 36),
    Sketcher.Constraint("Parallel", 33, 38),
    Sketcher.Constraint("Parallel", 36, 39),
    Sketcher.Constraint("Parallel", 38, 41),
    Sketcher.Constraint("Parallel", 41, 42),
    Sketcher.Constraint("Parallel", 42, 45),
    Sketcher.Constraint("Parallel", 46, 48),
    Sketcher.Constraint("Parallel", 45, 50),
    Sketcher.Constraint("Parallel", 48, 51),
    Sketcher.Constraint("Parallel", 50, 53),
    Sketcher.Constraint("Parallel", 53, 54),
    Sketcher.Constraint("Parallel", 54, 57),
    Sketcher.Constraint("Parallel", 57, 61),
    Sketcher.Constraint("Parallel", 58, 62),
    Sketcher.Constraint("Parallel", 61, 64),
    Sketcher.Constraint("Parallel", 62, 65),
    Sketcher.Constraint("Parallel", 64, 68),
    Sketcher.Constraint("Parallel", 68, 71),
    Sketcher.Constraint("Horizontal", 1, 2, 4, 2),
    Sketcher.Constraint("Horizontal", 14, 2, 17, 2),
    Sketcher.Constraint("Horizontal", 26, 2, 29, 2),
    Sketcher.Constraint("Horizontal", 38, 2, 41, 2),
    Sketcher.Constraint("Horizontal", 50, 2, 53, 2),
    Sketcher.Constraint("Horizontal", 61, 2, 64, 2),
    Sketcher.Constraint("Vertical", 0, 2, 2, 2),
    Sketcher.Constraint("Vertical", 11, 2, 12, 2),
    Sketcher.Constraint("Vertical", 8, 2, 13, 2),
    Sketcher.Constraint("Vertical", 7, 2, 14, 2),
    Sketcher.Constraint("Vertical", 13, 2, 15, 2),
    Sketcher.Constraint("Vertical", 16, 2, 24, 2),
    Sketcher.Constraint("Vertical", 15, 2, 25, 2),
    Sketcher.Constraint("Vertical", 14, 2, 26, 2),
    Sketcher.Constraint("Vertical", 25, 2, 27, 2),
    Sketcher.Constraint("Vertical", 28, 2, 36, 2),
    Sketcher.Constraint("Vertical", 27, 2, 37, 2),
    Sketcher.Constraint("Vertical", 26, 2, 38, 2),
    Sketcher.Constraint("Vertical", 37, 2, 39, 2),
    Sketcher.Constraint("Vertical", 40, 2, 48, 2),
    Sketcher.Constraint("Vertical", 39, 2, 49, 2),
    Sketcher.Constraint("Vertical", 38, 2, 50, 2),
    Sketcher.Constraint("Vertical", 49, 2, 51, 2),
    Sketcher.Constraint("Vertical", 58, 2, 60, 2),
    Sketcher.Constraint("Vertical", 57, 2, 61, 2),
    Sketcher.Constraint("Vertical", 60, 2, 62, 2),
    Sketcher.Constraint("Vertical", 59, 2, 63, 2),
    Sketcher.Constraint("Angle", 1, Q("60.0007 deg")),
    Sketcher.Constraint("DistanceY", -1, 1, 0, 2, 20.7),
    Sketcher.Constraint("DistanceY", -1, 1, 1, 2, 23.7),
    Sketcher.Constraint("DistanceY", 12, 2, -1, 1, 9.3),
    Sketcher.Constraint("DistanceY", 24, 2, -1, 1, 39.3),
    Sketcher.Constraint("DistanceY", 36, 2, -1, 1, 69.3),
    Sketcher.Constraint("DistanceY", 48, 2, -1, 1, 99.3),
    Sketcher.Constraint("DistanceY", 60, 2, -1, 1, 120.8),
    Sketcher.Constraint("DistanceX", 0, 1, 0, 2, 3.4642),
    Sketcher.Constraint("DistanceX", -1, 1, 0, 2, 14.232),
])
pocket1 = body.newObject("PartDesign::Pocket", "Pocket")
pocket1.Profile = sketch7
pocket1.Length = 4

# Sketch on XY plane
sketch8 = body.newObject("Sketcher::SketchObject", "Sketch007")
sketch8.AttachmentSupport = (doc.getObject("XY_Plane"), [""])
sketch8.MapMode = "FlatFace"
sketch8.AttachmentOffset = App.Placement(V(0, 0, -133), App.Rotation())
sketch8.addGeometry([
    Part.LineSegment(V(16, 8, 0), V(16, -10, 0)),
    Part.LineSegment(V(16, -10, 0), V(-16, -10, 0)),
    Part.LineSegment(V(-16, -10, 0), V(-16, 8, 0)),
    Part.LineSegment(V(-16, 8, 0), V(16, 8, 0)),
], False)
sketch8.addConstraint([
    Sketcher.Constraint("Coincident", 0, 2, 1, 1),
    Sketcher.Constraint("Coincident", 1, 2, 2, 1),
    Sketcher.Constraint("Coincident", 2, 2, 3, 1),
    Sketcher.Constraint("Coincident", 3, 2, 0, 1),
    Sketcher.Constraint("Vertical", 0),
    Sketcher.Constraint("Horizontal", 1),
    Sketcher.Constraint("Vertical", 2),
    Sketcher.Constraint("Horizontal", 3),
    Sketcher.Constraint("DistanceY", 0, 2, 0, 1, 17.0),
    Sketcher.Constraint("DistanceX", 1, 2, -1, 1, 16.0),
    Sketcher.Constraint("DistanceY", 0, 2, -1, 1, 9.5),
    Sketcher.Constraint("DistanceX", 1, 2, 1, 1, 31.964),
])
pad5 = body.newObject("PartDesign::Pad", "Pad004")
pad5.Profile = sketch8
pad5.Length = 50
pad5.Reversed = True
doc.recompute()

fillet = body.newObject("PartDesign::Fillet", "Fillet")
fillet.Base = (pad5, edges_at(pad5, [(15.964, -1, -183), (-16, -1, -183)]))
fillet.Radius = 10

# Sketch on XZ plane
sketch9 = body.newObject("Sketcher::SketchObject", "Sketch008")
sketch9.AttachmentSupport = (doc.getObject("XZ_Plane"), [""])
sketch9.MapMode = "FlatFace"
sketch9.AttachmentOffset = App.Placement(V(0, 0, -7.5), App.Rotation())
sketch9.addGeometry(Part.Circle(V(0, -168, 0), V(0, 0, 1), 8), False)
sketch9.addConstraint([
    Sketcher.Constraint("Diameter", 0, 15.0),
    Sketcher.Constraint("DistanceY", 0, 3, -1, 1, 168.0),
    Sketcher.Constraint("DistanceX", 0, 3, -1, 1, 0.018),
])
doc.recompute()
hole3 = body.newObject("PartDesign::Hole", "Hole002")
hole3.Profile = sketch9
hole3.ThreadType = "None"
hole3.Diameter = 15
hole3.DepthType = "ThroughAll"
hole3.Reversed = True

# Sketch on XZ plane
sketch10 = body.newObject("Sketcher::SketchObject", "Sketch009")
sketch10.AttachmentSupport = (doc.getObject("XZ_Plane"), [""])
sketch10.MapMode = "FlatFace"
sketch10.AttachmentOffset = App.Placement(V(0, 0, -7.5), App.Rotation())
sketch10.addGeometry([
    Part.LineSegment(V(-12.5, -133, 0), V(12.5, -133, 0)),
    Part.LineSegment(V(12.5, -133, 0), V(12.5, -136, 0)),
    Part.LineSegment(V(12.5, -136, 0), V(-12.5, -136, 0)),
    Part.LineSegment(V(-12.5, -136, 0), V(-12.5, -133, 0)),
], False)
sketch10.addConstraint([
    Sketcher.Constraint("Coincident", 0, 2, 1, 1),
    Sketcher.Constraint("Coincident", 1, 2, 2, 1),
    Sketcher.Constraint("Coincident", 2, 2, 3, 1),
    Sketcher.Constraint("Coincident", 3, 2, 0, 1),
    Sketcher.Constraint("Horizontal", 0),
    Sketcher.Constraint("Vertical", 1),
    Sketcher.Constraint("Horizontal", 2),
    Sketcher.Constraint("Vertical", 3),
    Sketcher.Constraint("DistanceX", 0, 1, 0, 2, 25.0),
    Sketcher.Constraint("DistanceY", 1, 2, 1, 1, 3.0),
    Sketcher.Constraint("DistanceY", 0, 2, -1, 1, 133.0),
    Sketcher.Constraint("DistanceX", -1, 1, 0, 2, 12.5),
])
pocket2 = body.newObject("PartDesign::Pocket", "Pocket001")
pocket2.Profile = sketch10
pocket2.Length = 15
pocket2.Reversed = True

doc.recompute()
